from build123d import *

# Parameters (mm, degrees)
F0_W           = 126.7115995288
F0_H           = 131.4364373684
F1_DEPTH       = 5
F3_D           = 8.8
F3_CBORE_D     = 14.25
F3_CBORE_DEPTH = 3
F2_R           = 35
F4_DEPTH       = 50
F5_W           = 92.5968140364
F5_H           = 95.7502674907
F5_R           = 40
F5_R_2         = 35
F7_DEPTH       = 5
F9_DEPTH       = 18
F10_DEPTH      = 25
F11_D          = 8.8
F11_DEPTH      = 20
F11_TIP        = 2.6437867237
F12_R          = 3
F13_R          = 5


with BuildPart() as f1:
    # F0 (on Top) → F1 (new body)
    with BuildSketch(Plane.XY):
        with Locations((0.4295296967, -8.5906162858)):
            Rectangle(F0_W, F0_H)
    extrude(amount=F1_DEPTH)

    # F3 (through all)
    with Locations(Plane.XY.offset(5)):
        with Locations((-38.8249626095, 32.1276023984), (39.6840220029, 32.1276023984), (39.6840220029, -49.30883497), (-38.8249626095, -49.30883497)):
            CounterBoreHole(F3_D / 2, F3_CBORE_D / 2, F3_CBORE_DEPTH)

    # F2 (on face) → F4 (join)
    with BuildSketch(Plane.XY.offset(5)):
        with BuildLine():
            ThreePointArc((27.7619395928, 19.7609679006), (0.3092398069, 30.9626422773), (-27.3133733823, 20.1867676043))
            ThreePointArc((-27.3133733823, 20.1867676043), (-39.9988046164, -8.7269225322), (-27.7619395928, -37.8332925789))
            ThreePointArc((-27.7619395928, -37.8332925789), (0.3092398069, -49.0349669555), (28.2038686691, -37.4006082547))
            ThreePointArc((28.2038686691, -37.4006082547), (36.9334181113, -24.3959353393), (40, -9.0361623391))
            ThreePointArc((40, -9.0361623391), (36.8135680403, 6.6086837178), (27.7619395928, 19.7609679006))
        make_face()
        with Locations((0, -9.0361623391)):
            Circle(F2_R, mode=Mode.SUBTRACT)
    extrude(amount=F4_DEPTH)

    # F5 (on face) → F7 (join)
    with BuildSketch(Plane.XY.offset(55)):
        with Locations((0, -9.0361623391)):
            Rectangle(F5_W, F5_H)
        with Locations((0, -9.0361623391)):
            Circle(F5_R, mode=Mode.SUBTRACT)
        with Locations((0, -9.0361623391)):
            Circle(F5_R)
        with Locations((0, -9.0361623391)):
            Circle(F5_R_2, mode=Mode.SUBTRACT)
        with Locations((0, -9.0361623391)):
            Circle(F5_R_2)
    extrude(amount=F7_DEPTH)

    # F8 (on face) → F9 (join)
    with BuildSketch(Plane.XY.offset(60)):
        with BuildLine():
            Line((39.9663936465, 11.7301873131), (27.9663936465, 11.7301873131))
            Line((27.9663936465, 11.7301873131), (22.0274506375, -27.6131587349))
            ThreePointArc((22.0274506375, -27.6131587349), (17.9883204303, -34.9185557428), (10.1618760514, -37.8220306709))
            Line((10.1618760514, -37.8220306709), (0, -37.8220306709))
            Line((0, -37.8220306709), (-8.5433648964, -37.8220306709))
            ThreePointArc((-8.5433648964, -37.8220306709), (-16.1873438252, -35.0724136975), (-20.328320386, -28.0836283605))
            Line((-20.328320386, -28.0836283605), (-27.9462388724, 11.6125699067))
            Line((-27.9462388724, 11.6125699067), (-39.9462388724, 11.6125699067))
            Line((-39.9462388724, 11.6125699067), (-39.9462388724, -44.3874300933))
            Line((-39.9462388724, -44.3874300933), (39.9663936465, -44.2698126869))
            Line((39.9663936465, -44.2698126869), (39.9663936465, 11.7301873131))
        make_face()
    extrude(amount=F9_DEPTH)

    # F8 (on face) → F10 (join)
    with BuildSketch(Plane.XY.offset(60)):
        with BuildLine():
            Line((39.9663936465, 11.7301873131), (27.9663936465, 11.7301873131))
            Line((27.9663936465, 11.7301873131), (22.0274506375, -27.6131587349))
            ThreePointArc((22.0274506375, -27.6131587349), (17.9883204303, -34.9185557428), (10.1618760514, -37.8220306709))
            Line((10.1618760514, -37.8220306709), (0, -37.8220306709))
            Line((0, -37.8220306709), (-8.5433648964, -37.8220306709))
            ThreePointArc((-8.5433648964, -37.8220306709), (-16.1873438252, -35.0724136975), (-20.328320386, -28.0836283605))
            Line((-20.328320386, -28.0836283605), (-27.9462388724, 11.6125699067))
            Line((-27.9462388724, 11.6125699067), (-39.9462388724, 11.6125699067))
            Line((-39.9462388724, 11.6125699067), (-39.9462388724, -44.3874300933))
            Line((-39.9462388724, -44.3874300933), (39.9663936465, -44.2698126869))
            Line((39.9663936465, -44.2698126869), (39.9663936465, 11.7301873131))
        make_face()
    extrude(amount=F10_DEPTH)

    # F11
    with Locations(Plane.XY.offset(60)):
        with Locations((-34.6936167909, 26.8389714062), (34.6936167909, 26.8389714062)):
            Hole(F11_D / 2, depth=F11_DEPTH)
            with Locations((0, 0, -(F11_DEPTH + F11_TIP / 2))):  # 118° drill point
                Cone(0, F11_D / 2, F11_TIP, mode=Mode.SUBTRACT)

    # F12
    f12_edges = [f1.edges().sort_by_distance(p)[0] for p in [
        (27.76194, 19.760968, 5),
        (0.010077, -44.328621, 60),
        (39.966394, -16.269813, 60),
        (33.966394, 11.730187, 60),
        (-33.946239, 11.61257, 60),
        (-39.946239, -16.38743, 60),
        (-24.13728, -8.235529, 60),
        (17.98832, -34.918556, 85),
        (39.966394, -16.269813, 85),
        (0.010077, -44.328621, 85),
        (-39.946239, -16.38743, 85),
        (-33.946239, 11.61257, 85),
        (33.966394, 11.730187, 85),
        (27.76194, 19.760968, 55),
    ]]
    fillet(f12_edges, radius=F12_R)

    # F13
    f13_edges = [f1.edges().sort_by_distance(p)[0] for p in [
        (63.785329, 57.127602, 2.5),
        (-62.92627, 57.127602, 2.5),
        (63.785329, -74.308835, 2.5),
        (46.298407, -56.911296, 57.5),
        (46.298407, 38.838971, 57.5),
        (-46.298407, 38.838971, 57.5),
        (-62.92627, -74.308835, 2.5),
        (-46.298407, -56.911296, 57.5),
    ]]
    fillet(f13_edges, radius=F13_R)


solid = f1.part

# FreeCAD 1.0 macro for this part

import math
import FreeCAD as App
import Part
import Sketcher
from FreeCAD import Vector


def edges_at(feature, points):
    """Names of the edges that pass closest to the given points."""
    edges = feature.Shape.Edges
    near = lambda p: min(range(len(edges)), key=lambda i: edges[i].distToShape(Part.Vertex(*p))[0])
    return sorted({f"Edge{near(p) + 1}" for p in points})

doc = App.newDocument("Part")
body = doc.addObject("PartDesign::Body", "Body")

# Sketch on XY plane
sketch1 = body.newObject("Sketcher::SketchObject", "Sketch")
sketch1.AttachmentSupport = (doc.getObject("XY_Plane"), [""])
sketch1.MapMode = "FlatFace"
sketch1.addGeometry(Part.LineSegment(Vector(-63, 57, 0), Vector(-63, -74, 0)), False)
sketch1.addGeometry(Part.LineSegment(Vector(-63, -74, 0), Vector(64, -74, 0)), False)
sketch1.addGeometry(Part.LineSegment(Vector(64, -74, 0), Vector(64, 57, 0)), False)
sketch1.addGeometry(Part.LineSegment(Vector(64, 57, 0), Vector(-63, 57, 0)), False)
sketch1.addConstraint(Sketcher.Constraint("Coincident", 0, 2, 1, 1))
sketch1.addConstraint(Sketcher.Constraint("Coincident", 1, 2, 2, 1))
sketch1.addConstraint(Sketcher.Constraint("Coincident", 2, 2, 3, 1))
sketch1.addConstraint(Sketcher.Constraint("Coincident", 3, 2, 0, 1))
sketch1.addConstraint(Sketcher.Constraint("Vertical", 0))
sketch1.addConstraint(Sketcher.Constraint("Horizontal", 1))
sketch1.addConstraint(Sketcher.Constraint("Vertical", 2))
sketch1.addConstraint(Sketcher.Constraint("Horizontal", 3))
sketch1.addConstraint(Sketcher.Constraint("DistanceX", 1, 1, 1, 2, 126.7116))
sketch1.addConstraint(Sketcher.Constraint("DistanceY", 0, 2, 0, 1, 131.436437))
sketch1.addConstraint(Sketcher.Constraint("DistanceX", 0, 2, -1, 1, 62.92627))
sketch1.addConstraint(Sketcher.Constraint("DistanceY", 0, 2, -1, 1, 74.308835))
pad1 = body.newObject("PartDesign::Pad", "Pad")
pad1.Profile = sketch1
pad1.Length = 5

# Sketch on XY plane
sketch2 = body.newObject("Sketcher::SketchObject", "Sketch001")
sketch2.AttachmentSupport = (doc.getObject("XY_Plane"), [""])
sketch2.MapMode = "FlatFace"
sketch2.AttachmentOffset = App.Placement(Vector(0, 0, 5), App.Rotation())
sketch2.addGeometry(Part.Circle(Vector(-38.8, 32.1, 0), Vector(0, 0, 1), 4.4), False)
sketch2.addGeometry(Part.Circle(Vector(39.7, 32.1, 0), Vector(0, 0, 1), 4.4), False)
sketch2.addGeometry(Part.Circle(Vector(39.7, -49.3, 0), Vector(0, 0, 1), 4.4), False)
sketch2.addGeometry(Part.Circle(Vector(-38.8, -49.3, 0), Vector(0, 0, 1), 4.4), False)
sketch2.addConstraint(Sketcher.Constraint("Equal", 0, 1))
sketch2.addConstraint(Sketcher.Constraint("Equal", 1, 2))
sketch2.addConstraint(Sketcher.Constraint("Equal", 2, 3))
sketch2.addConstraint(Sketcher.Constraint("Horizontal", 0, 3, 1, 3))
sketch2.addConstraint(Sketcher.Constraint("Horizontal", 2, 3, 3, 3))
sketch2.addConstraint(Sketcher.Constraint("Vertical", 1, 3, 2, 3))
sketch2.addConstraint(Sketcher.Constraint("Vertical", 0, 3, 3, 3))
sketch2.addConstraint(Sketcher.Constraint("Diameter", 0, 8.8))
sketch2.addConstraint(Sketcher.Constraint("DistanceX", 0, 3, -1, 1, 38.824963))
sketch2.addConstraint(Sketcher.Constraint("DistanceY", -1, 1, 0, 3, 32.127602))
sketch2.addConstraint(Sketcher.Constraint("DistanceX", -1, 1, 1, 3, 39.684022))
sketch2.addConstraint(Sketcher.Constraint("DistanceY", 2, 3, -1, 1, 49.308835))
doc.recompute()
hole = body.newObject("PartDesign::Hole", "Hole")
hole.Profile = sketch2
hole.ThreadType = "None"
hole.Diameter = 8.8
hole.DepthType = "ThroughAll"
hole.HoleCutType = "Counterbore"
hole.HoleCutDiameter = 14.25
hole.HoleCutDepth = 3

# Sketch on XY plane
sketch3 = body.newObject("Sketcher::SketchObject", "Sketch002")
sketch3.AttachmentSupport = (doc.getObject("XY_Plane"), [""])
sketch3.MapMode = "FlatFace"
sketch3.AttachmentOffset = App.Placement(Vector(0, 0, 5), App.Rotation())
sketch3.addGeometry(Part.ArcOfCircle(Part.Circle(Vector(0, -9, 0), Vector(0, 0, 1), 40), math.radians(46), math.radians(133)), False)
sketch3.addGeometry(Part.ArcOfCircle(Part.Circle(Vector(0, -9, 0), Vector(0, 0, 1), 40), math.radians(133), math.radians(226)), False)
sketch3.addGeometry(Part.ArcOfCircle(Part.Circle(Vector(0, -9, 0), Vector(0, 0, 1), 40), math.radians(-134), math.radians(-45)), False)
sketch3.addGeometry(Part.ArcOfCircle(Part.Circle(Vector(0, -9, 0), Vector(0, 0, 1), 40), math.radians(-45), math.radians(0)), False)
sketch3.addGeometry(Part.ArcOfCircle(Part.Circle(Vector(0, -9, 0), Vector(0, 0, 1), 40), math.radians(0), math.radians(46)), False)
sketch3.addGeometry(Part.Circle(Vector(0, -9, 0), Vector(0, 0, 1), 35), False)
sketch3.addConstraint(Sketcher.Constraint("Tangent", 0, 2, 1, 1))
sketch3.addConstraint(Sketcher.Constraint("Tangent", 1, 2, 2, 1))
sketch3.addConstraint(Sketcher.Constraint("Tangent", 2, 2, 3, 1))
sketch3.addConstraint(Sketcher.Constraint("Tangent", 3, 2, 4, 1))
sketch3.addConstraint(Sketcher.Constraint("Tangent", 4, 2, 0, 1))
sketch3.addConstraint(Sketcher.Constraint("Coincident", 2, 3, 0, 3))
sketch3.addConstraint(Sketcher.Constraint("Coincident", 5, 3, 0, 3))
sketch3.addConstraint(Sketcher.Constraint("PointOnObject", 0, 3, -2))
sketch3.addConstraint(Sketcher.Constraint("Horizontal", 5, 3, 3, 2))
sketch3.addConstraint(Sketcher.Constraint("Diameter", 5, 70.0))
sketch3.addConstraint(Sketcher.Constraint("Radius", 0, 40.0))
sketch3.addConstraint(Sketcher.Constraint("DistanceX", 1, 2, -1, 1, 27.76194))
sketch3.addConstraint(Sketcher.Constraint("DistanceX", -1, 1, 2, 2, 28.203869))
sketch3.addConstraint(Sketcher.Constraint("DistanceY", 2, 2, -1, 1, 37.400608))
sketch3.addConstraint(Sketcher.Constraint("DistanceX", -1, 1, 4, 2, 27.76194))
sketch3.addConstraint(Sketcher.Constraint("DistanceY", 0, 3, 0, 2, 29.22293))
pad2 = body.newObject("PartDesign::Pad", "Pad001")
pad2.Profile = sketch3
pad2.Length = 50

# Sketch on XY plane
sketch4 = body.newObject("Sketcher::SketchObject", "Sketch003")
sketch4.AttachmentSupport = (doc.getObject("XY_Plane"), [""])
sketch4.MapMode = "FlatFace"
sketch4.AttachmentOffset = App.Placement(Vector(0, 0, 55), App.Rotation())
sketch4.addGeometry(Part.LineSegment(Vector(-46, 39, 0), Vector(-46, -57, 0)), False)
sketch4.addGeometry(Part.LineSegment(Vector(-46, -57, 0), Vector(46, -57, 0)), False)
sketch4.addGeometry(Part.LineSegment(Vector(46, -57, 0), Vector(46, 39, 0)), False)
sketch4.addGeometry(Part.LineSegment(Vector(46, 39, 0), Vector(-46, 39, 0)), False)
sketch4.addConstraint(Sketcher.Constraint("Coincident", 0, 2, 1, 1))
sketch4.addConstraint(Sketcher.Constraint("Coincident", 1, 2, 2, 1))
sketch4.addConstraint(Sketcher.Constraint("Coincident", 2, 2, 3, 1))
sketch4.addConstraint(Sketcher.Constraint("Coincident", 3, 2, 0, 1))
sketch4.addConstraint(Sketcher.Constraint("Vertical", 0))
sketch4.addConstraint(Sketcher.Constraint("Horizontal", 1))
sketch4.addConstraint(Sketcher.Constraint("Vertical", 2))
sketch4.addConstraint(Sketcher.Constraint("Horizontal", 3))
sketch4.addConstraint(Sketcher.Constraint("DistanceX", 1, 1, 1, 2, 92.596814))
sketch4.addConstraint(Sketcher.Constraint("DistanceY", 0, 2, 0, 1, 95.750267))
sketch4.addConstraint(Sketcher.Constraint("DistanceY", -1, 1, 2, 2, 38.838971))
sketch4.addConstraint(Sketcher.Constraint("DistanceX", 0, 2, -1, 1, 46.298407))
pad3 = body.newObject("PartDesign::Pad", "Pad002")
pad3.Profile = sketch4
pad3.Length = 5

# Sketch on XY plane
sketch5 = body.newObject("Sketcher::SketchObject", "Sketch004")
sketch5.AttachmentSupport = (doc.getObject("XY_Plane"), [""])
sketch5.MapMode = "FlatFace"
sketch5.AttachmentOffset = App.Placement(Vector(0, 0, 60), App.Rotation())
sketch5.addGeometry(Part.LineSegment(Vector(40, 12, 0), Vector(28, 12, 0)), False)
sketch5.addGeometry(Part.LineSegment(Vector(28, 12, 0), Vector(22, -28, 0)), False)
sketch5.addGeometry(Part.ArcOfCircle(Part.Circle(Vector(10, -26, 0), Vector(0, 0, 1), 12), math.radians(-90), math.radians(-9)), False)
sketch5.addGeometry(Part.LineSegment(Vector(10, -38, 0), Vector(-9, -38, 0)), False)
sketch5.addGeometry(Part.ArcOfCircle(Part.Circle(Vector(-9, -26, 0), Vector(0, 0, 1), 12), math.radians(-169), math.radians(-90)), False)
sketch5.addGeometry(Part.LineSegment(Vector(-20, -28, 0), Vector(-28, 12, 0)), False)
sketch5.addGeometry(Part.LineSegment(Vector(-28, 12, 0), Vector(-40, 12, 0)), False)
sketch5.addGeometry(Part.LineSegment(Vector(-40, 12, 0), Vector(-40, -44, 0)), False)
sketch5.addGeometry(Part.LineSegment(Vector(-40, -44, 0), Vector(40, -44, 0)), False)
sketch5.addGeometry(Part.LineSegment(Vector(40, -44, 0), Vector(40, 12, 0)), False)
sketch5.addConstraint(Sketcher.Constraint("Coincident", 0, 2, 1, 1))
sketch5.addConstraint(Sketcher.Constraint("Tangent", 1, 2, 2, 2))
sketch5.addConstraint(Sketcher.Constraint("Tangent", 2, 1, 3, 1))
sketch5.addConstraint(Sketcher.Constraint("Tangent", 3, 2, 4, 2))
sketch5.addConstraint(Sketcher.Constraint("Tangent", 4, 1, 5, 1))
sketch5.addConstraint(Sketcher.Constraint("Coincident", 5, 2, 6, 1))
sketch5.addConstraint(Sketcher.Constraint("Coincident", 6, 2, 7, 1))
sketch5.addConstraint(Sketcher.Constraint("Coincident", 7, 2, 8, 1))
sketch5.addConstraint(Sketcher.Constraint("Coincident", 8, 2, 9, 1))
sketch5.addConstraint(Sketcher.Constraint("Coincident", 9, 2, 0, 1))
sketch5.addConstraint(Sketcher.Constraint("Horizontal", 0))
sketch5.addConstraint(Sketcher.Constraint("Horizontal", 3))
sketch5.addConstraint(Sketcher.Constraint("Horizontal", 6))
sketch5.addConstraint(Sketcher.Constraint("Vertical", 7))
sketch5.addConstraint(Sketcher.Constraint("Vertical", 9))
sketch5.addConstraint(Sketcher.Constraint("Equal", 2, 4))
sketch5.addConstraint(Sketcher.Constraint("Equal", 0, 6))
sketch5.addConstraint(Sketcher.Constraint("Equal", 7, 9))
sketch5.addConstraint(Sketcher.Constraint("Radius", 2, 12.0))
sketch5.addConstraint(Sketcher.Constraint("DistanceX", 0, 2, 0, 1, 12.0))
sketch5.addConstraint(Sketcher.Constraint("DistanceY", 7, 2, 7, 1, 56.0))
sketch5.addConstraint(Sketcher.Constraint("DistanceX", 3, 2, 3, 1, 18.705241))
sketch5.addConstraint(Sketcher.Constraint("DistanceY", 4, 1, 5, 2, 39.696198))
sketch5.addConstraint(Sketcher.Constraint("DistanceY", 4, 3, 5, 2, 37.434601))
sketch5.addConstraint(Sketcher.Constraint("Distance", 8, 79.912719))
sketch5.addConstraint(Sketcher.Constraint("DistanceY", 2, 3, -1, 1, 25.822031))
sketch5.addConstraint(Sketcher.Constraint("DistanceX", -1, 1, 1, 2, 22.027451))
sketch5.addConstraint(Sketcher.Constraint("DistanceY", 1, 2, -1, 1, 27.613159))
pad4 = body.newObject("PartDesign::Pad", "Pad003")
pad4.Profile = sketch5
pad4.Length = 18

# Sketch on XY plane
sketch6 = body.newObject("Sketcher::SketchObject", "Sketch005")
sketch6.AttachmentSupport = (doc.getObject("XY_Plane"), [""])
sketch6.MapMode = "FlatFace"
sketch6.AttachmentOffset = App.Placement(Vector(0, 0, 60), App.Rotation())
sketch6.addGeometry(Part.LineSegment(Vector(40, 12, 0), Vector(28, 12, 0)), False)
sketch6.addGeometry(Part.LineSegment(Vector(28, 12, 0), Vector(22, -28, 0)), False)
sketch6.addGeometry(Part.ArcOfCircle(Part.Circle(Vector(10, -26, 0), Vector(0, 0, 1), 12), math.radians(-90), math.radians(-9)), False)
sketch6.addGeometry(Part.LineSegment(Vector(10, -38, 0), Vector(-9, -38, 0)), False)
sketch6.addGeometry(Part.ArcOfCircle(Part.Circle(Vector(-9, -26, 0), Vector(0, 0, 1), 12), math.radians(-169), math.radians(-90)), False)
sketch6.addGeometry(Part.LineSegment(Vector(-20, -28, 0), Vector(-28, 12, 0)), False)
sketch6.addGeometry(Part.LineSegment(Vector(-28, 12, 0), Vector(-40, 12, 0)), False)
sketch6.addGeometry(Part.LineSegment(Vector(-40, 12, 0), Vector(-40, -44, 0)), False)
sketch6.addGeometry(Part.LineSegment(Vector(-40, -44, 0), Vector(40, -44, 0)), False)
sketch6.addGeometry(Part.LineSegment(Vector(40, -44, 0), Vector(40, 12, 0)), False)
sketch6.addConstraint(Sketcher.Constraint("Coincident", 0, 2, 1, 1))
sketch6.addConstraint(Sketcher.Constraint("Tangent", 1, 2, 2, 2))
sketch6.addConstraint(Sketcher.Constraint("Tangent", 2, 1, 3, 1))
sketch6.addConstraint(Sketcher.Constraint("Tangent", 3, 2, 4, 2))
sketch6.addConstraint(Sketcher.Constraint("Tangent", 4, 1, 5, 1))
sketch6.addConstraint(Sketcher.Constraint("Coincident", 5, 2, 6, 1))
sketch6.addConstraint(Sketcher.Constraint("Coincident", 6, 2, 7, 1))
sketch6.addConstraint(Sketcher.Constraint("Coincident", 7, 2, 8, 1))
sketch6.addConstraint(Sketcher.Constraint("Coincident", 8, 2, 9, 1))
sketch6.addConstraint(Sketcher.Constraint("Coincident", 9, 2, 0, 1))
sketch6.addConstraint(Sketcher.Constraint("Horizontal", 0))
sketch6.addConstraint(Sketcher.Constraint("Horizontal", 3))
sketch6.addConstraint(Sketcher.Constraint("Horizontal", 6))
sketch6.addConstraint(Sketcher.Constraint("Vertical", 7))
sketch6.addConstraint(Sketcher.Constraint("Vertical", 9))
sketch6.addConstraint(Sketcher.Constraint("Equal", 2, 4))
sketch6.addConstraint(Sketcher.Constraint("Equal", 0, 6))
sketch6.addConstraint(Sketcher.Constraint("Equal", 7, 9))
sketch6.addConstraint(Sketcher.Constraint("Radius", 2, 12.0))
sketch6.addConstraint(Sketcher.Constraint("DistanceX", 0, 2, 0, 1, 12.0))
sketch6.addConstraint(Sketcher.Constraint("DistanceY", 7, 2, 7, 1, 56.0))
sketch6.addConstraint(Sketcher.Constraint("DistanceX", 3, 2, 3, 1, 18.705241))
sketch6.addConstraint(Sketcher.Constraint("DistanceY", 4, 1, 5, 2, 39.696198))
sketch6.addConstraint(Sketcher.Constraint("DistanceY", 4, 3, 5, 2, 37.434601))
sketch6.addConstraint(Sketcher.Constraint("Distance", 8, 79.912719))
sketch6.addConstraint(Sketcher.Constraint("DistanceY", 2, 3, -1, 1, 25.822031))
sketch6.addConstraint(Sketcher.Constraint("DistanceX", -1, 1, 1, 2, 22.027451))
sketch6.addConstraint(Sketcher.Constraint("DistanceY", 1, 2, -1, 1, 27.613159))
pad5 = body.newObject("PartDesign::Pad", "Pad004")
pad5.Profile = sketch6
pad5.Length = 25

# Sketch on XY plane
sketch7 = body.newObject("Sketcher::SketchObject", "Sketch006")
sketch7.AttachmentSupport = (doc.getObject("XY_Plane"), [""])
sketch7.MapMode = "FlatFace"
sketch7.AttachmentOffset = App.Placement(Vector(0, 0, 60), App.Rotation())
sketch7.addGeometry(Part.Circle(Vector(-34.7, 26.8, 0), Vector(0, 0, 1), 4.4), False)
sketch7.addGeometry(Part.Circle(Vector(34.7, 26.8, 0), Vector(0, 0, 1), 4.4), False)
sketch7.addConstraint(Sketcher.Constraint("Equal", 0, 1))
sketch7.addConstraint(Sketcher.Constraint("Symmetric", 0, 3, 1, 3, -2))
sketch7.addConstraint(Sketcher.Constraint("Diameter", 0, 8.8))
sketch7.addConstraint(Sketcher.Constraint("DistanceY", -1, 1, 0, 3, 26.838971))
sketch7.addConstraint(Sketcher.Constraint("DistanceX", 0, 3, -1, 1, 34.693617))
doc.recompute()
hole2 = body.newObject("PartDesign::Hole", "Hole001")
hole2.Profile = sketch7
hole2.ThreadType = "None"
hole2.Diameter = 8.8
hole2.DepthType = "Dimension"
hole2.Depth = 20
hole2.DrillPoint = "Angled"
hole2.DrillPointAngle = 118
doc.recompute()

fillet = body.newObject("PartDesign::Fillet", "Fillet")
fillet.Base = (hole2, edges_at(hole2, [
    (36.814, 6.609, 5),
    (0.01, -44.329, 60),
    (39.966, -16.27, 60),
    (33.966, 11.73, 60),
    (-33.946, 11.613, 60),
    (-39.946, -16.387, 60),
    (-24.137, -8.236, 60),
    (17.988, -34.919, 85),
    (39.966, -16.27, 85),
    (0.01, -44.329, 85),
    (-39.946, -16.387, 85),
    (-33.946, 11.613, 85),
    (33.966, 11.73, 85),
    (36.814, 6.609, 55),
]))
fillet.Radius = 3
doc.recompute()

fillet2 = body.newObject("PartDesign::Fillet", "Fillet001")
fillet2.Base = (fillet, edges_at(fillet, [
    (63.785, 57.128, 2.5),
    (-62.926, 57.128, 2.5),
    (63.785, -74.309, 2.5),
    (46.298, -56.911, 57.5),
    (46.298, 38.839, 57.5),
    (-46.298, 38.839, 57.5),
    (-62.926, -74.309, 2.5),
    (-46.298, -56.911, 57.5),
]))
fillet2.Radius = 5

doc.recompute()
